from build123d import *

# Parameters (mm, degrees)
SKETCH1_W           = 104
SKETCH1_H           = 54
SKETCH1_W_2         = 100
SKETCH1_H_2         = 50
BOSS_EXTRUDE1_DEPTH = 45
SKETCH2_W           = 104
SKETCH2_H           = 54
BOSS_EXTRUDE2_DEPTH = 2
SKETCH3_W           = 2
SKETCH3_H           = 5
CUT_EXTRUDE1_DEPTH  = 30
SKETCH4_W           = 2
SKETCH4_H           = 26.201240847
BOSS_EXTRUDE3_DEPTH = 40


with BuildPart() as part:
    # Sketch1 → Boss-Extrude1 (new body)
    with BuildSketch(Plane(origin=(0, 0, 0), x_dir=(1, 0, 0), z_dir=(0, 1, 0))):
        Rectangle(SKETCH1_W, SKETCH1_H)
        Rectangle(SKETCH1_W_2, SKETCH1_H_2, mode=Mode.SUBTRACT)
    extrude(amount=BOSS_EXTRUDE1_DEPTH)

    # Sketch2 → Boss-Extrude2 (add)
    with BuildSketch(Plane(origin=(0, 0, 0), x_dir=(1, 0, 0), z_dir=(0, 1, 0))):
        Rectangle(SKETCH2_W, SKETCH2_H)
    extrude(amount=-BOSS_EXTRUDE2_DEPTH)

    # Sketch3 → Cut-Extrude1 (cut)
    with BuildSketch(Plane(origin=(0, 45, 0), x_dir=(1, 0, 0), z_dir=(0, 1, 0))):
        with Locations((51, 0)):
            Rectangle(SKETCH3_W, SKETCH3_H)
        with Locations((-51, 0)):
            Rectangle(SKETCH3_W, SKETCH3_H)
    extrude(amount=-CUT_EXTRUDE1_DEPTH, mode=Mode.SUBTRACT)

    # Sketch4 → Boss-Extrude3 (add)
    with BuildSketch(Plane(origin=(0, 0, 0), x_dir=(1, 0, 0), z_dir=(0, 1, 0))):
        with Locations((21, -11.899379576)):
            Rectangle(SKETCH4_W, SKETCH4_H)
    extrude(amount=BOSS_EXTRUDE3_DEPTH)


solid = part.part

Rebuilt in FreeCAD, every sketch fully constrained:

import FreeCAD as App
import Part
import Sketcher

V = App.Vector
Q = App.Units.Quantity

doc = App.newDocument("Part")
params = doc.addObject("Spreadsheet::Sheet", "Params")
for row, (alias, value) in enumerate([
    ("sketch1_width", "104 mm"),
    ("sketch1_width2", "100 mm"),
    ("sketch1_height", "54 mm"),
    ("sketch1_height2", "50 mm"),
    ("pad1_length", "45 mm"),
    ("sketch2_width", "104 mm"),
    ("sketch2_height", "54 mm"),
    ("pad2_length", "2 mm"),
    ("sketch3_width", "2 mm"),
    ("sketch3_height", "5 mm"),
    ("pocket1_length", "30 mm"),
    ("sketch4_width", "2 mm"),
    ("pad3_length", "40 mm"),
], start=1):
    params.set(f"A{row}", alias)
    params.set(f"B{row}", "=" + value)
    params.setAlias(f"B{row}", alias)

body = doc.addObject("PartDesign::Body", "Body")

# Sketch on XZ plane
sketch1 = doc.addObject("Sketcher::SketchObject", "Sketch")
body.addObject(sketch1)
sketch1.AttachmentSupport = (doc.XZ_Plane, [""])
sketch1.MapMode = "FlatFace"
sketch1.addGeometry([
    Part.LineSegment(V(-52, -27, 0), V(-52, 27, 0)),  # 0
    Part.LineSegment(V(-52, 27, 0), V(52, 27, 0)),  # 1
    Part.LineSegment(V(52, 27, 0), V(52, -27, 0)),  # 2
    Part.LineSegment(V(52, -27, 0), V(-52, -27, 0)),  # 3
    Part.LineSegment(V(50, 25, 0), V(-50, 25, 0)),  # 4
    Part.LineSegment(V(-50, 25, 0), V(-50, -25, 0)),  # 5
    Part.LineSegment(V(-50, -25, 0), V(50, -25, 0)),  # 6
    Part.LineSegment(V(50, -25, 0), V(50, 25, 0)),  # 7
], False)
sketch1.addConstraint([
    Sketcher.Constraint("Coincident", 0, 2, 1, 1),
    Sketcher.Constraint("Coincident", 1, 2, 2, 1),
    Sketcher.Constraint("Coincident", 2, 2, 3, 1),
    Sketcher.Constraint("Coincident", 3, 2, 0, 1),
    Sketcher.Constraint("Coincident", 4, 2, 5, 1),
    Sketcher.Constraint("Coincident", 5, 2, 6, 1),
    Sketcher.Constraint("Coincident", 6, 2, 7, 1),
    Sketcher.Constraint("Coincident", 7, 2, 4, 1),
    Sketcher.Constraint("Vertical", 0),
    Sketcher.Constraint("Horizontal", 1),
    Sketcher.Constraint("Vertical", 2),
    Sketcher.Constraint("Horizontal", 3),
    Sketcher.Constraint("Horizontal", 4),
    Sketcher.Constraint("Vertical", 5),
    Sketcher.Constraint("Horizontal", 6),
    Sketcher.Constraint("Vertical", 7),
    Sketcher.Constraint("Symmetric", 0, 2, 2, 2, -1, 1),
    Sketcher.Constraint("Symmetric", 4, 2, 6, 2, -1, 1),
    Sketcher.Constraint("DistanceX", 1, 1, 1, 2, Q("104 mm")),
    Sketcher.Constraint("DistanceX", 4, 2, 4, 1, Q("100 mm")),
    Sketcher.Constraint("DistanceY", 0, 1, 0, 2, Q("54 mm")),
    Sketcher.Constraint("DistanceY", 5, 2, 5, 1, Q("50 mm")),
])
sketch1.setExpression("Constraints[18]", "Params.sketch1_width")
sketch1.setExpression("Constraints[19]", "Params.sketch1_width2")
sketch1.setExpression("Constraints[20]", "Params.sketch1_height")
sketch1.setExpression("Constraints[21]", "Params.sketch1_height2")
pad1 = doc.addObject("PartDesign::Pad", "Pad")
body.addObject(pad1)
pad1.Profile = sketch1
pad1.setExpression("Length", "Params.pad1_length")
pad1.Reversed = True

# Sketch on XZ plane
sketch2 = doc.addObject("Sketcher::SketchObject", "Sketch001")
body.addObject(sketch2)
sketch2.AttachmentSupport = (doc.XZ_Plane, [""])
sketch2.MapMode = "FlatFace"
sketch2.addGeometry([
    Part.LineSegment(V(-52, -27, 0), V(-52, 27, 0)),
    Part.LineSegment(V(-52, 27, 0), V(52, 27, 0)),
    Part.LineSegment(V(52, 27, 0), V(52, -27, 0)),
    Part.LineSegment(V(52, -27, 0), V(-52, -27, 0)),
], False)
sketch2.addConstraint([
    Sketcher.Constraint("Coincident", 0, 2, 1, 1),
    Sketcher.Constraint("Coincident", 1, 2, 2, 1),
    Sketcher.Constraint("Coincident", 2, 2, 3, 1),
    Sketcher.Constraint("Coincident", 3, 2, 0, 1),
    Sketcher.Constraint("Vertical", 0),
    Sketcher.Constraint("Horizontal", 1),
    Sketcher.Constraint("Vertical", 2),
    Sketcher.Constraint("Horizontal", 3),
    Sketcher.Constraint("Symmetric", 0, 2, 2, 2, -1, 1),
    Sketcher.Constraint("DistanceX", 1, 1, 1, 2, Q("104 mm")),
    Sketcher.Constraint("DistanceY", 0, 1, 0, 2, Q("54 mm")),
])
sketch2.setExpression("Constraints[9]", "Params.sketch2_width")
sketch2.setExpression("Constraints[10]", "Params.sketch2_height")
pad2 = doc.addObject("PartDesign::Pad", "Pad001")
body.addObject(pad2)
pad2.Profile = sketch2
pad2.setExpression("Length", "Params.pad2_length")

# Sketch on XZ plane
sketch3 = doc.addObject("Sketcher::SketchObject", "Sketch002")
body.addObject(sketch3)
sketch3.AttachmentSupport = (doc.XZ_Plane, [""])
sketch3.MapMode = "FlatFace"
sketch3.AttachmentOffset = App.Placement(V(0, 0, -45), App.Rotation())
sketch3.addGeometry([
    Part.LineSegment(V(50, -2.5, 0), V(50, 2.5, 0)),  # 0
    Part.LineSegment(V(50, 2.5, 0), V(52, 2.5, 0)),  # 1
    Part.LineSegment(V(52, 2.5, 0), V(52, -2.5, 0)),  # 2
    Part.LineSegment(V(52, -2.5, 0), V(50, -2.5, 0)),  # 3
    Part.LineSegment(V(-52, -2.5, 0), V(-52, 2.5, 0)),  # 4
    Part.LineSegment(V(-52, 2.5, 0), V(-50, 2.5, 0)),  # 5
    Part.LineSegment(V(-50, 2.5, 0), V(-50, -2.5, 0)),  # 6
    Part.LineSegment(V(-50, -2.5, 0), V(-52, -2.5, 0)),  # 7
], False)
sketch3.addConstraint([
    Sketcher.Constraint("Coincident", 0, 2, 1, 1),
    Sketcher.Constraint("Coincident", 1, 2, 2, 1),
    Sketcher.Constraint("Coincident", 2, 2, 3, 1),
    Sketcher.Constraint("Coincident", 3, 2, 0, 1),
    Sketcher.Constraint("Coincident", 4, 2, 5, 1),
    Sketcher.Constraint("Coincident", 5, 2, 6, 1),
    Sketcher.Constraint("Coincident", 6, 2, 7, 1),
    Sketcher.Constraint("Coincident", 7, 2, 4, 1),
    Sketcher.Constraint("Vertical", 0),
    Sketcher.Constraint("Horizontal", 1),
    Sketcher.Constraint("Vertical", 2),
    Sketcher.Constraint("Horizontal", 3),
    Sketcher.Constraint("Vertical", 4),
    Sketcher.Constraint("Horizontal", 5),
    Sketcher.Constraint("Vertical", 6),
    Sketcher.Constraint("Horizontal", 7),
    Sketcher.Constraint("Symmetric", 2, 2, 4, 2, -1, 1),
    Sketcher.Constraint("Symmetric", 0, 2, 6, 2, -1, 1),
    Sketcher.Constraint("Horizontal", 1, 2, 4, 2),
    Sketcher.Constraint("DistanceX", 1, 1, 1, 2, Q("2 mm")),
    Sketcher.Constraint("DistanceY", 0, 1, 0, 2, Q("5 mm")),
    Sketcher.Constraint("DistanceX", -1, 1, 0, 2, Q("50 mm")),
])
sketch3.setExpression("Constraints[19]", "Params.sketch3_width")
sketch3.setExpression("Constraints[20]", "Params.sketch3_height")
pocket1 = doc.addObject("PartDesign::Pocket", "Pocket")
body.addObject(pocket1)
pocket1.Profile = sketch3
pocket1.setExpression("Length", "Params.pocket1_length")
pocket1.Reversed = True

# Sketch on XZ plane
sketch4 = doc.addObject("Sketcher::SketchObject", "Sketch003")
body.addObject(sketch4)
sketch4.AttachmentSupport = (doc.XZ_Plane, [""])
sketch4.MapMode = "FlatFace"
sketch4.addGeometry([
    Part.LineSegment(V(20, -1.201241, 0), V(20, 25, 0)),
    Part.LineSegment(V(20, 25, 0), V(22, 25, 0)),
    Part.LineSegment(V(22, 25, 0), V(22, -1.201241, 0)),
    Part.LineSegment(V(22, -1.201241, 0), V(20, -1.201241, 0)),
], False)
sketch4.addConstraint([
    Sketcher.Constraint("Coincident", 0, 2, 1, 1),
    Sketcher.Constraint("Coincident", 1, 2, 2, 1),
    Sketcher.Constraint("Coincident", 2, 2, 3, 1),
    Sketcher.Constraint("Coincident", 3, 2, 0, 1),
    Sketcher.Constraint("Vertical", 0),
    Sketcher.Constraint("Horizontal", 1),
    Sketcher.Constraint("Vertical", 2),
    Sketcher.Constraint("Horizontal", 3),
    Sketcher.Constraint("DistanceX", 1, 1, 1, 2, Q("2 mm")),
    Sketcher.Constraint("DistanceX", -1, 1, 0, 2, Q("20 mm")),
    Sketcher.Constraint("DistanceY", -1, 1, 0, 2, Q("25 mm")),
    Sketcher.Constraint("DistanceY", 0, 1, 0, 2, Q("26.201241 mm")),
])
sketch4.setExpression("Constraints[8]", "Params.sketch4_width")
pad3 = doc.addObject("PartDesign::Pad", "Pad002")
body.addObject(pad3)
pad3.Profile = sketch4
pad3.setExpression("Length", "Params.pad3_length")
pad3.Reversed = True

doc.recompute()
